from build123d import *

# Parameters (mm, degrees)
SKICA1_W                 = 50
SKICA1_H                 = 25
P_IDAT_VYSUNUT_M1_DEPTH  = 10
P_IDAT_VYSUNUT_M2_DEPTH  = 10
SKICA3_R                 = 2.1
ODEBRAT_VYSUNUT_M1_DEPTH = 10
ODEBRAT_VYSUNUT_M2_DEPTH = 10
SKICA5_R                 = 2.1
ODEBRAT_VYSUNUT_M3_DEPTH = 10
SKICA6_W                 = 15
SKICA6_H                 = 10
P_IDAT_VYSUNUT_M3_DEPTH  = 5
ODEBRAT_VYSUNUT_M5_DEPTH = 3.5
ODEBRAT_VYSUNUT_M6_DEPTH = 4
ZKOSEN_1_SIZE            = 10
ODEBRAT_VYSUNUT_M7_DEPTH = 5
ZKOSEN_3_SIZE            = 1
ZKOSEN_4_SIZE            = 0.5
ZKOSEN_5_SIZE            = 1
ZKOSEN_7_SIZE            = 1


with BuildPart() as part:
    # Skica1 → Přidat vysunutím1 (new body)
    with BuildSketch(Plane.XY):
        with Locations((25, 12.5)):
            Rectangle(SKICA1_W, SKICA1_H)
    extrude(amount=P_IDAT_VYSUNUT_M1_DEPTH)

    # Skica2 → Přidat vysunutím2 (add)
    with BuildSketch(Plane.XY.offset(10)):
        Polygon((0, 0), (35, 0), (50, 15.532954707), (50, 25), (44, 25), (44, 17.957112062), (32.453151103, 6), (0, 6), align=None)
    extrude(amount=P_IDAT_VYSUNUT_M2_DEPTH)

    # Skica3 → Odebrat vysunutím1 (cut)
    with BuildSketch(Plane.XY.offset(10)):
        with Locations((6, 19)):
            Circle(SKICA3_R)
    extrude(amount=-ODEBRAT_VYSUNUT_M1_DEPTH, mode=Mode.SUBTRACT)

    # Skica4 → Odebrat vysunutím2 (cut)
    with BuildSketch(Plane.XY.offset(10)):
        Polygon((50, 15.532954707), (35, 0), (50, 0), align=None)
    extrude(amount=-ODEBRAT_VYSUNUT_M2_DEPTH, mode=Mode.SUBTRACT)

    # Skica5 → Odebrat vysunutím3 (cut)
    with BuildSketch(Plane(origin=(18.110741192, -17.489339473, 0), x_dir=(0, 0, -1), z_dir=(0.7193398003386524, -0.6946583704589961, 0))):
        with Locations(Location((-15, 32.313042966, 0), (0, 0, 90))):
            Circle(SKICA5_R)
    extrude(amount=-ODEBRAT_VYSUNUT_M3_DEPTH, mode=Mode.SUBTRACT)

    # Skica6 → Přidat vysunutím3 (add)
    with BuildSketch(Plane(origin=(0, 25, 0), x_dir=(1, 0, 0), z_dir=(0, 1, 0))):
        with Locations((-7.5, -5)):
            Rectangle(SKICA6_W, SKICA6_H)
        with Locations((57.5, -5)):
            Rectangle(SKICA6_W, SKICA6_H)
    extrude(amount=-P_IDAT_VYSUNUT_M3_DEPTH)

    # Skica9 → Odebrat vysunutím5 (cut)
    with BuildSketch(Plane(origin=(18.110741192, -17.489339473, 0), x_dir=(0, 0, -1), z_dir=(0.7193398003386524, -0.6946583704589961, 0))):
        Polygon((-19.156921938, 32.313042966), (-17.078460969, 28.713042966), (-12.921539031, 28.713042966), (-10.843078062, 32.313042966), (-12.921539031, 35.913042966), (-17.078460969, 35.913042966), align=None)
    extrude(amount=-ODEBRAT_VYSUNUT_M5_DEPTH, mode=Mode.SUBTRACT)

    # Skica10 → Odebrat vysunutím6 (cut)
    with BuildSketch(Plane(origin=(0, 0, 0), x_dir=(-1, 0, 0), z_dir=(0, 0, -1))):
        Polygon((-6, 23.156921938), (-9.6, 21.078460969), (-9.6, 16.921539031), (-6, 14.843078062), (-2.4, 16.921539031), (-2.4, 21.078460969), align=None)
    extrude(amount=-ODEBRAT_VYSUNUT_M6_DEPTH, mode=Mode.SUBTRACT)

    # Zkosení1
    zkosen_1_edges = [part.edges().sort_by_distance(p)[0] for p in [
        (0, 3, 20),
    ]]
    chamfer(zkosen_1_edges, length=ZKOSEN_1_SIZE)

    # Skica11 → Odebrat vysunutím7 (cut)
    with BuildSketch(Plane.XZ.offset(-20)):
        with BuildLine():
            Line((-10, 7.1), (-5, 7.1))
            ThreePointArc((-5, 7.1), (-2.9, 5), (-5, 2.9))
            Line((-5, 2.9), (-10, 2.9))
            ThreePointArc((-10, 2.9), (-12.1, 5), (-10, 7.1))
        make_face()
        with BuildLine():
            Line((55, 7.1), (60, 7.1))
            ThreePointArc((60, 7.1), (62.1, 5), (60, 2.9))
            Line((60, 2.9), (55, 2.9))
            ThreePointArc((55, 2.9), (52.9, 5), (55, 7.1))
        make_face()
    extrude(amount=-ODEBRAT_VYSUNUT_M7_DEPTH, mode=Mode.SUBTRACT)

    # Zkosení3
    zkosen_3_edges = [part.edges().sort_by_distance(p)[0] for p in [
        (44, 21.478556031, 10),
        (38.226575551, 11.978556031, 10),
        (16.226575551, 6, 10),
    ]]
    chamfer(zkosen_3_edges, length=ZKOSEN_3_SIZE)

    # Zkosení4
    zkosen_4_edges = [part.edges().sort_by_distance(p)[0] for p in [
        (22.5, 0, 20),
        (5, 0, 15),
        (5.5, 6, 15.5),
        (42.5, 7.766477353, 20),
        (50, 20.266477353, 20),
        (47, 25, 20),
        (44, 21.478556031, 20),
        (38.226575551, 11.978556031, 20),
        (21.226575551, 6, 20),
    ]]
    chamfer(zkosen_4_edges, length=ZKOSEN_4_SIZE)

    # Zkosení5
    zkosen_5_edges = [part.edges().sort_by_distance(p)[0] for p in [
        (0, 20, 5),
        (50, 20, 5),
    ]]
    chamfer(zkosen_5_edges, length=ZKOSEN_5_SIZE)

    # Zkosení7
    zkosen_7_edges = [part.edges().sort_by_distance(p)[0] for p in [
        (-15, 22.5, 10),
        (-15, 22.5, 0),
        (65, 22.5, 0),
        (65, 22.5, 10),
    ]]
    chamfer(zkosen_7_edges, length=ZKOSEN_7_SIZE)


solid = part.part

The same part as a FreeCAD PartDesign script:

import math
import FreeCAD as App
import Part
import Sketcher
Q = App.Units.Quantity


def edges_at(feature, points):
    """Names of the edges that pass closest to the given points."""
    edges = feature.Shape.Edges
    near = lambda p: min(range(len(edges)), key=lambda i: edges[i].distToShape(Part.Vertex(*p))[0])
    return sorted({f"Edge{near(p) + 1}" for p in points})

doc = App.newDocument("Part")
body = doc.addObject("PartDesign::Body", "Body")

# Sketch on XY plane
sketch1 = doc.addObject("Sketcher::SketchObject", "Sketch")
body.addObject(sketch1)
sketch1.AttachmentSupport = (doc.XY_Plane, [""])
sketch1.MapMode = "FlatFace"
sketch1.addGeometry([
    Part.LineSegment(App.Vector(0, 25, 0), App.Vector(0, 0, 0)),
    Part.LineSegment(App.Vector(0, 0, 0), App.Vector(50, 0, 0)),
    Part.LineSegment(App.Vector(50, 0, 0), App.Vector(50, 25, 0)),
    Part.LineSegment(App.Vector(50, 25, 0), App.Vector(0, 25, 0)),
], False)
sketch1.addConstraint([
    Sketcher.Constraint("Coincident", 0, 2, 1, 1),
    Sketcher.Constraint("Coincident", 1, 2, 2, 1),
    Sketcher.Constraint("Coincident", 2, 2, 3, 1),
    Sketcher.Constraint("Coincident", 3, 2, 0, 1),
    Sketcher.Constraint("Vertical", 0),
    Sketcher.Constraint("Horizontal", 1),
    Sketcher.Constraint("Vertical", 2),
    Sketcher.Constraint("Horizontal", 3),
    Sketcher.Constraint("Coincident", 0, 2, -1, 1),
    Sketcher.Constraint("DistanceX", 1, 1, 1, 2, 50.0),
    Sketcher.Constraint("DistanceY", 0, 2, 0, 1, 25.0),
])
pad1 = doc.addObject("PartDesign::Pad", "Pad")
body.addObject(pad1)
pad1.Profile = sketch1
pad1.Length = 10

# Sketch on XY plane
sketch2 = doc.addObject("Sketcher::SketchObject", "Sketch001")
body.addObject(sketch2)
sketch2.AttachmentSupport = (doc.XY_Plane, [""])
sketch2.MapMode = "FlatFace"
sketch2.AttachmentOffset = App.Placement(App.Vector(0, 0, 10), App.Rotation())
sketch2.addGeometry([
    Part.LineSegment(App.Vector(0, 0, 0), App.Vector(35, 0, 0)),  # 0
    Part.LineSegment(App.Vector(35, 0, 0), App.Vector(50, 16, 0)),  # 1
    Part.LineSegment(App.Vector(50, 16, 0), App.Vector(50, 25, 0)),  # 2
    Part.LineSegment(App.Vector(50, 25, 0), App.Vector(44, 25, 0)),  # 3
    Part.LineSegment(App.Vector(44, 25, 0), App.Vector(44, 18, 0)),  # 4
    Part.LineSegment(App.Vector(44, 18, 0), App.Vector(32, 6, 0)),  # 5
    Part.LineSegment(App.Vector(32, 6, 0), App.Vector(0, 6, 0)),  # 6
    Part.LineSegment(App.Vector(0, 6, 0), App.Vector(0, 0, 0)),  # 7
], False)
sketch2.addConstraint([
    Sketcher.Constraint("Coincident", 0, 2, 1, 1),
    Sketcher.Constraint("Coincident", 1, 2, 2, 1),
    Sketcher.Constraint("Coincident", 2, 2, 3, 1),
    Sketcher.Constraint("Coincident", 3, 2, 4, 1),
    Sketcher.Constraint("Coincident", 4, 2, 5, 1),
    Sketcher.Constraint("Coincident", 5, 2, 6, 1),
    Sketcher.Constraint("Coincident", 6, 2, 7, 1),
    Sketcher.Constraint("Coincident", 7, 2, 0, 1),
    Sketcher.Constraint("Horizontal", 0),
    Sketcher.Constraint("Vertical", 2),
    Sketcher.Constraint("Horizontal", 3),
    Sketcher.Constraint("Vertical", 4),
    Sketcher.Constraint("Horizontal", 6),
    Sketcher.Constraint("Vertical", 7),
    Sketcher.Constraint("Coincident", 7, 2, -1, 1),
    Sketcher.Constraint("Parallel", 1, 5),
    Sketcher.Constraint("Equal", 3, 7),
    Sketcher.Constraint("DistanceX", 0, 1, 0, 2, 35.0),
    Sketcher.Constraint("DistanceX", 3, 2, 3, 1, 6.0),
    Sketcher.Constraint("Angle", 1, Q("46 deg")),
    Sketcher.Constraint("DistanceX", -1, 1, 1, 2, 50.0),
    Sketcher.Constraint("DistanceY", -1, 1, 2, 2, 25.0),
    Sketcher.Constraint("DistanceX", 6, 2, 6, 1, 32.453151),
])
pad2 = doc.addObject("PartDesign::Pad", "Pad001")
body.addObject(pad2)
pad2.Profile = sketch2
pad2.Length = 10

# Sketch on XY plane
sketch3 = doc.addObject("Sketcher::SketchObject", "Sketch002")
body.addObject(sketch3)
sketch3.AttachmentSupport = (doc.XY_Plane, [""])
sketch3.MapMode = "FlatFace"
sketch3.AttachmentOffset = App.Placement(App.Vector(0, 0, 10), App.Rotation())
sketch3.addGeometry(Part.Circle(App.Vector(6, 19, 0), App.Vector(0, 0, 1), 2.1), False)
sketch3.addConstraint([
    Sketcher.Constraint("Diameter", 0, 4.2),
    Sketcher.Constraint("DistanceX", -1, 1, 0, 3, 6.0),
    Sketcher.Constraint("DistanceY", -1, 1, 0, 3, 19.0),
])
pocket1 = doc.addObject("PartDesign::Pocket", "Pocket")
body.addObject(pocket1)
pocket1.Profile = sketch3
pocket1.Length = 10

# Sketch on XY plane
sketch4 = doc.addObject("Sketcher::SketchObject", "Sketch003")
body.addObject(sketch4)
sketch4.AttachmentSupport = (doc.XY_Plane, [""])
sketch4.MapMode = "FlatFace"
sketch4.AttachmentOffset = App.Placement(App.Vector(0, 0, 10), App.Rotation())
sketch4.addGeometry([
    Part.LineSegment(App.Vector(50, 16, 0), App.Vector(35, 0, 0)),
    Part.LineSegment(App.Vector(35, 0, 0), App.Vector(50, 0, 0)),
    Part.LineSegment(App.Vector(50, 0, 0), App.Vector(50, 16, 0)),
], False)
sketch4.addConstraint([
    Sketcher.Constraint("Coincident", 0, 2, 1, 1),
    Sketcher.Constraint("Coincident", 1, 2, 2, 1),
    Sketcher.Constraint("Coincident", 2, 2, 0, 1),
    Sketcher.Constraint("Horizontal", 1),
    Sketcher.Constraint("Vertical", 2),
    Sketcher.Constraint("PointOnObject", 0, 2, -1),
    Sketcher.Constraint("DistanceX", 1, 1, 1, 2, 15.0),
    Sketcher.Constraint("Angle", 0, Q("-134 deg")),
    Sketcher.Constraint("DistanceX", -1, 1, 0, 2, 35.0),
])
pocket2 = doc.addObject("PartDesign::Pocket", "Pocket001")
body.addObject(pocket2)
pocket2.Profile = sketch4
pocket2.Length = 10

# Sketch on an angled plane
sketch5 = doc.addObject("Sketcher::SketchObject", "Sketch004")
body.addObject(sketch5)
sketch5.Placement = App.Placement(App.Vector(18.110741, -17.489339, 0), App.Rotation(App.Vector(0, 0, -1), App.Vector(0.69465837, 0.7193398, 0), App.Vector(0.7193398, -0.69465837, 0), "ZXY"))
sketch5.addGeometry(Part.Circle(App.Vector(-15, 32.3, 0), App.Vector(0, 0, 1), 2.1), False)
sketch5.addConstraint([
    Sketcher.Constraint("Diameter", 0, 4.2),
    Sketcher.Constraint("DistanceX", 0, 3, -1, 1, 15.0),
    Sketcher.Constraint("DistanceY", -1, 1, 0, 3, 32.313043),
])
pocket3 = doc.addObject("PartDesign::Pocket", "Pocket002")
body.addObject(pocket3)
pocket3.Profile = sketch5
pocket3.Length = 10

# Sketch on XZ plane
sketch6 = doc.addObject("Sketcher::SketchObject", "Sketch005")
body.addObject(sketch6)
sketch6.AttachmentSupport = (doc.XZ_Plane, [""])
sketch6.MapMode = "FlatFace"
sketch6.AttachmentOffset = App.Placement(App.Vector(0, 0, -25), App.Rotation())
sketch6.addGeometry([
    Part.LineSegment(App.Vector(-15, 0, 0), App.Vector(-15, 10, 0)),  # 0
    Part.LineSegment(App.Vector(-15, 10, 0), App.Vector(0, 10, 0)),  # 1
    Part.LineSegment(App.Vector(0, 10, 0), App.Vector(0, 0, 0)),  # 2
    Part.LineSegment(App.Vector(0, 0, 0), App.Vector(-15, 0, 0)),  # 3
    Part.LineSegment(App.Vector(50, 0, 0), App.Vector(50, 10, 0)),  # 4
    Part.LineSegment(App.Vector(50, 10, 0), App.Vector(65, 10, 0)),  # 5
    Part.LineSegment(App.Vector(65, 10, 0), App.Vector(65, 0, 0)),  # 6
    Part.LineSegment(App.Vector(65, 0, 0), App.Vector(50, 0, 0)),  # 7
], False)
sketch6.addConstraint([
    Sketcher.Constraint("Coincident", 0, 2, 1, 1),
    Sketcher.Constraint("Coincident", 1, 2, 2, 1),
    Sketcher.Constraint("Coincident", 2, 2, 3, 1),
    Sketcher.Constraint("Coincident", 3, 2, 0, 1),
    Sketcher.Constraint("Coincident", 4, 2, 5, 1),
    Sketcher.Constraint("Coincident", 5, 2, 6, 1),
    Sketcher.Constraint("Coincident", 6, 2, 7, 1),
    Sketcher.Constraint("Coincident", 7, 2, 4, 1),
    Sketcher.Constraint("Vertical", 0),
    Sketcher.Constraint("Horizontal", 1),
    Sketcher.Constraint("Vertical", 2),
    Sketcher.Constraint("Horizontal", 3),
    Sketcher.Constraint("Vertical", 4),
    Sketcher.Constraint("Horizontal", 5),
    Sketcher.Constraint("Vertical", 6),
    Sketcher.Constraint("Horizontal", 7),
    Sketcher.Constraint("Coincident", 2, 2, -1, 1),
    Sketcher.Constraint("PointOnObject", 6, 2, -1),
    Sketcher.Constraint("Horizontal", 1, 2, 4, 2),
    Sketcher.Constraint("Equal", 3, 5),
    Sketcher.Constraint("DistanceX", 1, 1, 1, 2, 15.0),
    Sketcher.Constraint("DistanceY", 0, 1, 0, 2, 10.0),
    Sketcher.Constraint("DistanceX", -1, 1, 4, 2, 50.0),
])
pad3 = doc.addObject("PartDesign::Pad", "Pad002")
body.addObject(pad3)
pad3.Profile = sketch6
pad3.Length = 5

# Sketch on an angled plane
sketch7 = doc.addObject("Sketcher::SketchObject", "Sketch006")
body.addObject(sketch7)
sketch7.Placement = App.Placement(App.Vector(18.110741, -17.489339, 0), App.Rotation(App.Vector(0, 0, -1), App.Vector(0.69465837, 0.7193398, 0), App.Vector(0.7193398, -0.69465837, 0), "ZXY"))
sketch7.addGeometry([
    Part.LineSegment(App.Vector(-19.2, 32.3, 0), App.Vector(-17.1, 28.7, 0)),  # 0
    Part.LineSegment(App.Vector(-17.1, 28.7, 0), App.Vector(-12.9, 28.7, 0)),  # 1
    Part.LineSegment(App.Vector(-12.9, 28.7, 0), App.Vector(-10.8, 32.3, 0)),  # 2
    Part.LineSegment(App.Vector(-10.8, 32.3, 0), App.Vector(-12.9, 35.9, 0)),  # 3
    Part.LineSegment(App.Vector(-12.9, 35.9, 0), App.Vector(-17.1, 35.9, 0)),  # 4
    Part.LineSegment(App.Vector(-17.1, 35.9, 0), App.Vector(-19.2, 32.3, 0)),  # 5
], False)
sketch7.addConstraint([
    Sketcher.Constraint("Coincident", 0, 2, 1, 1),
    Sketcher.Constraint("Coincident", 1, 2, 2, 1),
    Sketcher.Constraint("Coincident", 2, 2, 3, 1),
    Sketcher.Constraint("Coincident", 3, 2, 4, 1),
    Sketcher.Constraint("Coincident", 4, 2, 5, 1),
    Sketcher.Constraint("Coincident", 5, 2, 0, 1),
    Sketcher.Constraint("Horizontal", 1),
    Sketcher.Constraint("Horizontal", 4),
    Sketcher.Constraint("Parallel", 0, 3),
    Sketcher.Constraint("Parallel", 2, 5),
    Sketcher.Constraint("Horizontal", 2, 2, 5, 2),
    Sketcher.Constraint("Vertical", 1, 2, 3, 2),
    Sketcher.Constraint("Vertical", 0, 2, 4, 2),
    Sketcher.Constraint("Angle", 0, Q("-60 deg")),
    Sketcher.Constraint("DistanceY", 1, 2, 2, 2, 3.6),
    Sketcher.Constraint("DistanceX", 1, 1, 1, 2, 4.156922),
    Sketcher.Constraint("DistanceX", 0, 2, -1, 1, 17.078461),
    Sketcher.Constraint("DistanceY", -1, 1, 0, 2, 28.713043),
])
pocket4 = doc.addObject("PartDesign::Pocket", "Pocket003")
body.addObject(pocket4)
pocket4.Profile = sketch7
pocket4.Length = 3.5

# Sketch on XY plane
sketch8 = doc.addObject("Sketcher::SketchObject", "Sketch007")
body.addObject(sketch8)
sketch8.AttachmentSupport = (doc.XY_Plane, [""])
sketch8.MapMode = "FlatFace"
sketch8.addGeometry([
    Part.LineSegment(App.Vector(6, 23.2, 0), App.Vector(9.6, 21.1, 0)),  # 0
    Part.LineSegment(App.Vector(9.6, 21.1, 0), App.Vector(9.6, 16.9, 0)),  # 1
    Part.LineSegment(App.Vector(9.6, 16.9, 0), App.Vector(6, 14.8, 0)),  # 2
    Part.LineSegment(App.Vector(6, 14.8, 0), App.Vector(2.4, 16.9, 0)),  # 3
    Part.LineSegment(App.Vector(2.4, 16.9, 0), App.Vector(2.4, 21.1, 0)),  # 4
    Part.LineSegment(App.Vector(2.4, 21.1, 0), App.Vector(6, 23.2, 0)),  # 5
], False)
sketch8.addConstraint([
    Sketcher.Constraint("Coincident", 0, 2, 1, 1),
    Sketcher.Constraint("Coincident", 1, 2, 2, 1),
    Sketcher.Constraint("Coincident", 2, 2, 3, 1),
    Sketcher.Constraint("Coincident", 3, 2, 4, 1),
    Sketcher.Constraint("Coincident", 4, 2, 5, 1),
    Sketcher.Constraint("Coincident", 5, 2, 0, 1),
    Sketcher.Constraint("Vertical", 1),
    Sketcher.Constraint("Vertical", 4),
    Sketcher.Constraint("Parallel", 0, 3),
    Sketcher.Constraint("Parallel", 2, 5),
    Sketcher.Constraint("Horizontal", 1, 2, 3, 2),
    Sketcher.Constraint("Horizontal", 0, 2, 4, 2),
    Sketcher.Constraint("Vertical", 2, 2, 5, 2),
    Sketcher.Constraint("Angle", 0, Q("-30 deg")),
    Sketcher.Constraint("DistanceX", -1, 1, 2, 2, 6.0),
    Sketcher.Constraint("DistanceX", -1, 1, 0, 2, 9.6),
    Sketcher.Constraint("DistanceY", 1, 2, 1, 1, 4.156922),
    Sketcher.Constraint("DistanceY", -1, 1, 0, 2, 21.078461),
])
pocket5 = doc.addObject("PartDesign::Pocket", "Pocket004")
body.addObject(pocket5)
pocket5.Profile = sketch8
pocket5.Length = 4
pocket5.Reversed = True
doc.recompute()

chamfer = doc.addObject("PartDesign::Chamfer", "Chamfer")
body.addObject(chamfer)
chamfer.Base = (pocket5, edges_at(pocket5, [(0, 3, 20)]))
chamfer.Size = 10

# Sketch on XZ plane
sketch9 = doc.addObject("Sketcher::SketchObject", "Sketch008")
body.addObject(sketch9)
sketch9.AttachmentSupport = (doc.XZ_Plane, [""])
sketch9.MapMode = "FlatFace"
sketch9.AttachmentOffset = App.Placement(App.Vector(0, 0, -20), App.Rotation())
sketch9.addGeometry([
    Part.LineSegment(App.Vector(-5, 7.1, 0), App.Vector(-10, 7.1, 0)),  # 0
    Part.ArcOfCircle(Part.Circle(App.Vector(-10, 5, 0), App.Vector(0, 0, 1), 2.1), math.radians(90), math.radians(270)),  # 1
    Part.LineSegment(App.Vector(-10, 2.9, 0), App.Vector(-5, 2.9, 0)),  # 2
    Part.ArcOfCircle(Part.Circle(App.Vector(-5, 5, 0), App.Vector(0, 0, 1), 2.1), math.radians(-90), math.radians(90)),  # 3
    Part.LineSegment(App.Vector(60, 7.1, 0), App.Vector(55, 7.1, 0)),  # 4
    Part.ArcOfCircle(Part.Circle(App.Vector(55, 5, 0), App.Vector(0, 0, 1), 2.1), math.radians(90), math.radians(270)),  # 5
    Part.LineSegment(App.Vector(55, 2.9, 0), App.Vector(60, 2.9, 0)),  # 6
    Part.ArcOfCircle(Part.Circle(App.Vector(60, 5, 0), App.Vector(0, 0, 1), 2.1), math.radians(-90), math.radians(90)),  # 7
], False)
sketch9.addConstraint([
    Sketcher.Constraint("Tangent", 0, 2, 1, 1),
    Sketcher.Constraint("Tangent", 1, 2, 2, 1),
    Sketcher.Constraint("Tangent", 2, 2, 3, 1),
    Sketcher.Constraint("Tangent", 3, 2, 0, 1),
    Sketcher.Constraint("Tangent", 4, 2, 5, 1),
    Sketcher.Constraint("Tangent", 5, 2, 6, 1),
    Sketcher.Constraint("Tangent", 6, 2, 7, 1),
    Sketcher.Constraint("Tangent", 7, 2, 4, 1),
    Sketcher.Constraint("Horizontal", 0),
    Sketcher.Constraint("Horizontal", 2),
    Sketcher.Constraint("Horizontal", 4),
    Sketcher.Constraint("Horizontal", 6),
    Sketcher.Constraint("Equal", 3, 5),
    Sketcher.Constraint("Horizontal", 3, 3, 5, 3),
    Sketcher.Constraint("Equal", 2, 4),
    Sketcher.Constraint("Radius", 1, 2.1),
    Sketcher.Constraint("DistanceX", 0, 2, 0, 1, 5.0),
    Sketcher.Constraint("DistanceX", 1, 3, -1, 1, 10.0),
    Sketcher.Constraint("DistanceY", -1, 1, 1, 3, 5.0),
    Sketcher.Constraint("DistanceX", -1, 1, 5, 3, 55.0),
])
pocket6 = doc.addObject("PartDesign::Pocket", "Pocket005")
body.addObject(pocket6)
pocket6.Profile = sketch9
pocket6.Length = 5
doc.recompute()

chamfer2 = doc.addObject("PartDesign::Chamfer", "Chamfer001")
body.addObject(chamfer2)
chamfer2.Base = (pocket6, edges_at(pocket6, [(44, 21.479, 10), (38.227, 11.979, 10), (16.227, 6, 10)]))
chamfer2.Size = 1
doc.recompute()

chamfer3 = doc.addObject("PartDesign::Chamfer", "Chamfer002")
body.addObject(chamfer3)
chamfer3.Base = (chamfer2, edges_at(chamfer2, [
    (22.5, 0, 20),
    (5, 0, 15),
    (5.5, 6, 15.5),
    (42.5, 7.766, 20),
    (50, 20.266, 20),
    (47, 25, 20),
    (44, 21.479, 20),
    (38.227, 11.979, 20),
    (21.227, 6, 20),
]))
chamfer3.Size = 0.5
doc.recompute()

chamfer4 = doc.addObject("PartDesign::Chamfer", "Chamfer003")
body.addObject(chamfer4)
chamfer4.Base = (chamfer3, edges_at(chamfer3, [(0, 20, 5), (50, 20, 5)]))
chamfer4.Size = 1
doc.recompute()

chamfer5 = doc.addObject("PartDesign::Chamfer", "Chamfer004")
body.addObject(chamfer5)
chamfer5.Base = (chamfer4, edges_at(chamfer4, [
    (-15, 22.5, 10),
    (-15, 22.5, 0),
    (65, 22.5, 0),
    (65, 22.5, 10),
]))
chamfer5.Size = 1

doc.recompute()
